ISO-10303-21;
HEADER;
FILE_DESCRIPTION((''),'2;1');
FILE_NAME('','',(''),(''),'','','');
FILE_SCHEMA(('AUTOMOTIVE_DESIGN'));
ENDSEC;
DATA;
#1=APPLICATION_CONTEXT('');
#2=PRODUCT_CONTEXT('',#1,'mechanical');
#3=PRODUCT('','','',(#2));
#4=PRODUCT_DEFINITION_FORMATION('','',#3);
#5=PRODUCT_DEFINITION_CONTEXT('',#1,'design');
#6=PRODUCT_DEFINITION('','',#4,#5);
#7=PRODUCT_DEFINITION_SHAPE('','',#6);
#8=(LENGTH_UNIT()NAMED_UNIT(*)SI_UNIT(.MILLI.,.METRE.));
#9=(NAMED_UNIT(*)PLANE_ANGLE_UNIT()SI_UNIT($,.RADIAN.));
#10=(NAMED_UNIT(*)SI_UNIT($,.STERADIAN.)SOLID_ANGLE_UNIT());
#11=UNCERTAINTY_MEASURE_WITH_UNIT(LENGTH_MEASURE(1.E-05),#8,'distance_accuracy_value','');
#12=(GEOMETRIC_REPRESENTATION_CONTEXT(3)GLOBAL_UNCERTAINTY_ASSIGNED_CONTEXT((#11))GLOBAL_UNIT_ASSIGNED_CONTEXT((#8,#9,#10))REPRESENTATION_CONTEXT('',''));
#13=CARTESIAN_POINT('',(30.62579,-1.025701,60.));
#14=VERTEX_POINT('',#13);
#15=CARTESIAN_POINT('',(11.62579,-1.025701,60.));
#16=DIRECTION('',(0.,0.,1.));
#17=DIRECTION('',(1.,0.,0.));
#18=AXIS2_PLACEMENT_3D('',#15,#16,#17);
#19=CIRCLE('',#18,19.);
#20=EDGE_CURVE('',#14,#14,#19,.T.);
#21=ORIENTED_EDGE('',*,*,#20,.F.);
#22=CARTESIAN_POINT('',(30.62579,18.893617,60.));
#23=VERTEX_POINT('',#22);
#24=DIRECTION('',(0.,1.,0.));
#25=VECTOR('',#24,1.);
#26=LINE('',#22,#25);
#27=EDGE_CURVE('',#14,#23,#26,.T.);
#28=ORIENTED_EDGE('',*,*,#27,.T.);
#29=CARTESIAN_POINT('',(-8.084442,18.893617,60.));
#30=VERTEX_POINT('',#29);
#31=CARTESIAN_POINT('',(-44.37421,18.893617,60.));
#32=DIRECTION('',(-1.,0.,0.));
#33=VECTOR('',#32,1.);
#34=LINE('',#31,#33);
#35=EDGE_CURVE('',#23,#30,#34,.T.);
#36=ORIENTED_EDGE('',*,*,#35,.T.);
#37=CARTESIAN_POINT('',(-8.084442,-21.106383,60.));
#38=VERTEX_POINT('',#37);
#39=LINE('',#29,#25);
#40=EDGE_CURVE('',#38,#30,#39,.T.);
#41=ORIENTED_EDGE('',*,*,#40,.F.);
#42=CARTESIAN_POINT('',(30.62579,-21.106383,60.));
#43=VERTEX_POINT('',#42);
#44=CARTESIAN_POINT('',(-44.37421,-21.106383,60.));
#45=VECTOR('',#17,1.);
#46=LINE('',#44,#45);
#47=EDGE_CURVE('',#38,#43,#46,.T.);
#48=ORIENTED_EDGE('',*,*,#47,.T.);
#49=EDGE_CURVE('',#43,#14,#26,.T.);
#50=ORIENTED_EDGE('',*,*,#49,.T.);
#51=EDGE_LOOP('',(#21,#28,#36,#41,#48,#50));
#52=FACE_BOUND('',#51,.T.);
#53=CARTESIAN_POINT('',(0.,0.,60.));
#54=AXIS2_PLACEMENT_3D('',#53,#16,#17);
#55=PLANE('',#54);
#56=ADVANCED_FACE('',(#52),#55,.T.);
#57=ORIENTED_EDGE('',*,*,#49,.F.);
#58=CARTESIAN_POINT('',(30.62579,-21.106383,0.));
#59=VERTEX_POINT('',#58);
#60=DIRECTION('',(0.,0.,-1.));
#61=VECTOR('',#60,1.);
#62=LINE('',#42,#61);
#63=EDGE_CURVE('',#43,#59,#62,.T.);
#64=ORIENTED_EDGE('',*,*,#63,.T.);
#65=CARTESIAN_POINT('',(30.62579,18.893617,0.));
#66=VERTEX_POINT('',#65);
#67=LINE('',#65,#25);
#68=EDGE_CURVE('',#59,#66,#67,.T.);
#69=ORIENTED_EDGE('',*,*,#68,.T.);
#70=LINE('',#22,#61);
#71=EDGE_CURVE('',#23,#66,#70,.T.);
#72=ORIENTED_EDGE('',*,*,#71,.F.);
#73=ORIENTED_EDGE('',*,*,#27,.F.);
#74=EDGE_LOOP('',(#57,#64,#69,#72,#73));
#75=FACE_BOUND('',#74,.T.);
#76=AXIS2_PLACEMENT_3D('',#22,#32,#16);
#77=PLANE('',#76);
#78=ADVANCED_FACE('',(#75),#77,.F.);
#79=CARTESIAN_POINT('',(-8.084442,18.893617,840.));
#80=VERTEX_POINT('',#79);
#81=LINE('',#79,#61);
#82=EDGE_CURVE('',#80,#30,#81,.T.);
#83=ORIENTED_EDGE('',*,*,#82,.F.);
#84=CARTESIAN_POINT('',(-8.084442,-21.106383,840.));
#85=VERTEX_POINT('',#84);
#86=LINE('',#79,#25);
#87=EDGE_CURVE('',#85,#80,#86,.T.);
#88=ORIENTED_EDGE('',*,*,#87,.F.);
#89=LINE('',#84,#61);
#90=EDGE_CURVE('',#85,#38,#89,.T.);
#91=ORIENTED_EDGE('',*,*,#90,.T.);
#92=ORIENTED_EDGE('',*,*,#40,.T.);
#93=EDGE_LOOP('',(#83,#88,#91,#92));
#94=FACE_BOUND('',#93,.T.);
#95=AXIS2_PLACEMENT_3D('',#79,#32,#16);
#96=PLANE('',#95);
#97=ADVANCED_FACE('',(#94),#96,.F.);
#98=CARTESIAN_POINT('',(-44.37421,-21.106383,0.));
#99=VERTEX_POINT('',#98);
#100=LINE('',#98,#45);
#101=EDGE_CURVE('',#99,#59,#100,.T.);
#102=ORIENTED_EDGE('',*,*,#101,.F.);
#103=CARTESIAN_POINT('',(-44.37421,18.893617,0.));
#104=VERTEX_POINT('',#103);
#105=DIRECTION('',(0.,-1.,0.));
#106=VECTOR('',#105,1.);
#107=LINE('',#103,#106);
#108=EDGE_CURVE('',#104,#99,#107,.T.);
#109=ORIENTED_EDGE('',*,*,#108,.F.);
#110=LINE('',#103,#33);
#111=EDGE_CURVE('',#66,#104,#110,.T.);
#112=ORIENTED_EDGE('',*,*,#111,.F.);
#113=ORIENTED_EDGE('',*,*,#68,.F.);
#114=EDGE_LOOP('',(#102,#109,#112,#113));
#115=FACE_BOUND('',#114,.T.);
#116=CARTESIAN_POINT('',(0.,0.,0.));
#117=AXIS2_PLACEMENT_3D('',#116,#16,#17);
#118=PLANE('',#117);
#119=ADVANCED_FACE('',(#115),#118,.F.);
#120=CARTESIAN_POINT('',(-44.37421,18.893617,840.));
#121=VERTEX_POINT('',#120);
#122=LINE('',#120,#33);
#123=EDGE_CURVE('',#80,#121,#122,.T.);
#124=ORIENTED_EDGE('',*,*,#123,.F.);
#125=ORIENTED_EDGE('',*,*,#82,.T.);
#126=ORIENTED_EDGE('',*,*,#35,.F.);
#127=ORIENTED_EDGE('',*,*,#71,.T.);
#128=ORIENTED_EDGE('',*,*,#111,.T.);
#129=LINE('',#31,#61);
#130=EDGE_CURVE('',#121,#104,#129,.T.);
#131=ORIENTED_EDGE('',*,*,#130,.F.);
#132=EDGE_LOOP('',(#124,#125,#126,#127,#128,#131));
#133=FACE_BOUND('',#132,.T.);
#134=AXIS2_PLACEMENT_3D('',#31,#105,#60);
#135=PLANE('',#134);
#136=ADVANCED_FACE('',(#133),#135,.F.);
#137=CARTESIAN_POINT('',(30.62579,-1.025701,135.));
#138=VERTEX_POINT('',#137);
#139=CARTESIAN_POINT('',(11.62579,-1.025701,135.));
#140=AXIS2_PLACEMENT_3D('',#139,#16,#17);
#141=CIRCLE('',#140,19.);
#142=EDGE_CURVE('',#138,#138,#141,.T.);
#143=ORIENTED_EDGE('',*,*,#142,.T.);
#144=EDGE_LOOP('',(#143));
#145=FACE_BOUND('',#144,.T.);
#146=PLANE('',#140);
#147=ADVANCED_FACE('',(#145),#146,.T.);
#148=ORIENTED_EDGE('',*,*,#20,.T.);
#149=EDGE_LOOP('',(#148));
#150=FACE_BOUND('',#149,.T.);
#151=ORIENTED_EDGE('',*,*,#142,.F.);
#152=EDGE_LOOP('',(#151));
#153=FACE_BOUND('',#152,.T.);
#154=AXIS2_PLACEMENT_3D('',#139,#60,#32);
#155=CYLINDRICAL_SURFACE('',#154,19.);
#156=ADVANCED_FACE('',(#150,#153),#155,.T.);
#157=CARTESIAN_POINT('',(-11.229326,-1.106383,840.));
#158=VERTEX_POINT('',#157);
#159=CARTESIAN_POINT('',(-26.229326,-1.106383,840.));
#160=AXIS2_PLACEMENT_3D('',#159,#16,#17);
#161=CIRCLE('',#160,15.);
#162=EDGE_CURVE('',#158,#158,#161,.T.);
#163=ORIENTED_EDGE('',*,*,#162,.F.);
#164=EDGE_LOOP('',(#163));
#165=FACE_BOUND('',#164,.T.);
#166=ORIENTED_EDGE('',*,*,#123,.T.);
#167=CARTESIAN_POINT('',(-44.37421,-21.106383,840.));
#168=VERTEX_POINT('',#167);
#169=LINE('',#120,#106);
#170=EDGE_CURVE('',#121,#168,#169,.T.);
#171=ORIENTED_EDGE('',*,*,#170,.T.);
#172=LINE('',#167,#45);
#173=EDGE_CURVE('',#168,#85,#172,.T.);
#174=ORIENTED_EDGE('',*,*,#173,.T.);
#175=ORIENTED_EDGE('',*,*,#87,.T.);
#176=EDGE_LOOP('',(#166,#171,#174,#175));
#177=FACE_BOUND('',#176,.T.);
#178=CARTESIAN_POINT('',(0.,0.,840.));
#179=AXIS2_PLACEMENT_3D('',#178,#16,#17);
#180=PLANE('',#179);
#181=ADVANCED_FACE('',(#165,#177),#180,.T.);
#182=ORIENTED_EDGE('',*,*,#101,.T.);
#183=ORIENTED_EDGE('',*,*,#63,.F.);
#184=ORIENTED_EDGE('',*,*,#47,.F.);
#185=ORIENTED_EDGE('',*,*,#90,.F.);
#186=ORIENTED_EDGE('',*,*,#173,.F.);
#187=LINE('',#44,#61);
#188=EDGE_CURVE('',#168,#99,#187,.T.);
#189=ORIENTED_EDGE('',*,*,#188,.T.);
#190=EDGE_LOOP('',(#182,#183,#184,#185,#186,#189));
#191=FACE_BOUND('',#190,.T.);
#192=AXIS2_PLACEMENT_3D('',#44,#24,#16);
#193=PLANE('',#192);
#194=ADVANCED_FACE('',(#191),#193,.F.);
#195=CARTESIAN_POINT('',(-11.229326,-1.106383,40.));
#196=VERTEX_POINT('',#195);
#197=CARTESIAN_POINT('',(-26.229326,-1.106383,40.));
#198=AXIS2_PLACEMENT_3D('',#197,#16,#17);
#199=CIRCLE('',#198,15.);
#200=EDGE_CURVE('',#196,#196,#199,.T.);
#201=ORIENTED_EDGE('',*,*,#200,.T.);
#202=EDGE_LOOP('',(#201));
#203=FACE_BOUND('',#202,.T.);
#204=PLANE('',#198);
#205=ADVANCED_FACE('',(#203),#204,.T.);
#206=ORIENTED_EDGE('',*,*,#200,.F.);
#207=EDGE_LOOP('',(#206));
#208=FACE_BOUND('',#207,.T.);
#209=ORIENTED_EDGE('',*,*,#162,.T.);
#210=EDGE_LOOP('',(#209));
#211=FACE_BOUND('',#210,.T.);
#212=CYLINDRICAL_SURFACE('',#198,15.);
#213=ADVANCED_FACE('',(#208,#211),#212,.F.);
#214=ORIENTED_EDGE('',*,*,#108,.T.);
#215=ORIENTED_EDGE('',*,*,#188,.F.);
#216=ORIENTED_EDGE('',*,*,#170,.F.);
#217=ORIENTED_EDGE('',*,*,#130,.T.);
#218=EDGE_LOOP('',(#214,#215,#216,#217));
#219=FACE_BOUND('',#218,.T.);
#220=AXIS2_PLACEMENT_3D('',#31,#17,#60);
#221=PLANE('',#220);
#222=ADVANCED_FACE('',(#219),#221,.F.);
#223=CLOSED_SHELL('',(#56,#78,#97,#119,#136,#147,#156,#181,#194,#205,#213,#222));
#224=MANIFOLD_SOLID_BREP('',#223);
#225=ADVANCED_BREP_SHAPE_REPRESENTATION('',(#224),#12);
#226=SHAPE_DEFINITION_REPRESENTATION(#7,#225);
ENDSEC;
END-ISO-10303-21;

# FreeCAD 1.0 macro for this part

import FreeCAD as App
import Part
import Sketcher
from FreeCAD import Vector

doc = App.newDocument("Part")
body = doc.addObject("PartDesign::Body", "Body")

# Sketch on XY plane
sketch1 = body.newObject("Sketcher::SketchObject", "Sketch")
sketch1.AttachmentSupport = (doc.getObject("XY_Plane"), [""])
sketch1.MapMode = "FlatFace"
sketch1.addGeometry([
    Part.LineSegment(Vector(-44.37421, 18.893617, 0), Vector(-44.37421, -21.106383, 0)),
    Part.LineSegment(Vector(-44.37421, -21.106383, 0), Vector(30.62579, -21.106383, 0)),
    Part.LineSegment(Vector(30.62579, -21.106383, 0), Vector(30.62579, 18.893617, 0)),
    Part.LineSegment(Vector(30.62579, 18.893617, 0), Vector(-44.37421, 18.893617, 0)),
], False)
sketch1.addConstraint([
    Sketcher.Constraint("Coincident", 0, 2, 1, 1),
    Sketcher.Constraint("Coincident", 1, 2, 2, 1),
    Sketcher.Constraint("Coincident", 2, 2, 3, 1),
    Sketcher.Constraint("Coincident", 3, 2, 0, 1),
    Sketcher.Constraint("Vertical", 0),
    Sketcher.Constraint("Horizontal", 1),
    Sketcher.Constraint("Vertical", 2),
    Sketcher.Constraint("Horizontal", 3),
    Sketcher.Constraint("DistanceX", 1, 1, 1, 2, 75.0),
    Sketcher.Constraint("DistanceY", 0, 2, 0, 1, 40.0),
    Sketcher.Constraint("DistanceX", 0, 2, -1, 1, 44.37421),
    Sketcher.Constraint("DistanceY", 0, 2, -1, 1, 21.106383),
])
pad1 = body.newObject("PartDesign::Pad", "Pad")
pad1.Profile = sketch1
pad1.Length = 60

# Sketch on XY plane
sketch2 = body.newObject("Sketcher::SketchObject", "Sketch001")
sketch2.AttachmentSupport = (doc.getObject("XY_Plane"), [""])
sketch2.MapMode = "FlatFace"
sketch2.AttachmentOffset = App.Placement(Vector(0, 0, 60), App.Rotation())
sketch2.addGeometry(Part.Circle(Vector(11.62579, -1.025701, 0), Vector(0, 0, 1), 19), False)
sketch2.addConstraint([
    Sketcher.Constraint("Diameter", 0, 38.0),
    Sketcher.Constraint("DistanceY", 0, 3, -1, 1, 1.025701),
    Sketcher.Constraint("DistanceX", -1, 1, 0, 3, 11.62579),
])
pad2 = body.newObject("PartDesign::Pad", "Pad001")
pad2.Profile = sketch2
pad2.Length = 75

# Sketch on XY plane
sketch3 = body.newObject("Sketcher::SketchObject", "Sketch002")
sketch3.AttachmentSupport = (doc.getObject("XY_Plane"), [""])
sketch3.MapMode = "FlatFace"
sketch3.AttachmentOffset = App.Placement(Vector(0, 0, 60), App.Rotation())
sketch3.addGeometry([
    Part.LineSegment(Vector(-44.37421, 18.893617, 0), Vector(-44.37421, -21.106383, 0)),
    Part.LineSegment(Vector(-44.37421, -21.106383, 0), Vector(-8.084442, -21.106383, 0)),
    Part.LineSegment(Vector(-8.084442, -21.106383, 0), Vector(-8.084442, 18.893617, 0)),
    Part.LineSegment(Vector(-8.084442, 18.893617, 0), Vector(-44.37421, 18.893617, 0)),
], False)
sketch3.addConstraint([
    Sketcher.Constraint("Coincident", 0, 2, 1, 1),
    Sketcher.Constraint("Coincident", 1, 2, 2, 1),
    Sketcher.Constraint("Coincident", 2, 2, 3, 1),
    Sketcher.Constraint("Coincident", 3, 2, 0, 1),
    Sketcher.Constraint("Vertical", 0),
    Sketcher.Constraint("Horizontal", 1),
    Sketcher.Constraint("Vertical", 2),
    Sketcher.Constraint("Horizontal", 3),
    Sketcher.Constraint("DistanceY", 0, 2, 0, 1, 40.0),
    Sketcher.Constraint("DistanceX", 1, 1, 1, 2, 36.289768),
    Sketcher.Constraint("DistanceX", 0, 2, -1, 1, 44.37421),
    Sketcher.Constraint("DistanceY", 0, 2, -1, 1, 21.106383),
])
pad3 = body.newObject("PartDesign::Pad", "Pad002")
pad3.Profile = sketch3
pad3.Length = 780

# Sketch on XY plane
sketch4 = body.newObject("Sketcher::SketchObject", "Sketch003")
sketch4.AttachmentSupport = (doc.getObject("XY_Plane"), [""])
sketch4.MapMode = "FlatFace"
sketch4.AttachmentOffset = App.Placement(Vector(0, 0, 840), App.Rotation())
sketch4.addGeometry(Part.Circle(Vector(-26.229326, -1.106383, 0), Vector(0, 0, 1), 15), False)
sketch4.addConstraint([
    Sketcher.Constraint("Diameter", 0, 30.0),
    Sketcher.Constraint("DistanceX", 0, 3, -1, 1, 26.229326),
    Sketcher.Constraint("DistanceY", 0, 3, -1, 1, 1.106383),
])
pocket1 = body.newObject("PartDesign::Pocket", "Pocket")
pocket1.Profile = sketch4
pocket1.Length = 800

doc.recompute()
